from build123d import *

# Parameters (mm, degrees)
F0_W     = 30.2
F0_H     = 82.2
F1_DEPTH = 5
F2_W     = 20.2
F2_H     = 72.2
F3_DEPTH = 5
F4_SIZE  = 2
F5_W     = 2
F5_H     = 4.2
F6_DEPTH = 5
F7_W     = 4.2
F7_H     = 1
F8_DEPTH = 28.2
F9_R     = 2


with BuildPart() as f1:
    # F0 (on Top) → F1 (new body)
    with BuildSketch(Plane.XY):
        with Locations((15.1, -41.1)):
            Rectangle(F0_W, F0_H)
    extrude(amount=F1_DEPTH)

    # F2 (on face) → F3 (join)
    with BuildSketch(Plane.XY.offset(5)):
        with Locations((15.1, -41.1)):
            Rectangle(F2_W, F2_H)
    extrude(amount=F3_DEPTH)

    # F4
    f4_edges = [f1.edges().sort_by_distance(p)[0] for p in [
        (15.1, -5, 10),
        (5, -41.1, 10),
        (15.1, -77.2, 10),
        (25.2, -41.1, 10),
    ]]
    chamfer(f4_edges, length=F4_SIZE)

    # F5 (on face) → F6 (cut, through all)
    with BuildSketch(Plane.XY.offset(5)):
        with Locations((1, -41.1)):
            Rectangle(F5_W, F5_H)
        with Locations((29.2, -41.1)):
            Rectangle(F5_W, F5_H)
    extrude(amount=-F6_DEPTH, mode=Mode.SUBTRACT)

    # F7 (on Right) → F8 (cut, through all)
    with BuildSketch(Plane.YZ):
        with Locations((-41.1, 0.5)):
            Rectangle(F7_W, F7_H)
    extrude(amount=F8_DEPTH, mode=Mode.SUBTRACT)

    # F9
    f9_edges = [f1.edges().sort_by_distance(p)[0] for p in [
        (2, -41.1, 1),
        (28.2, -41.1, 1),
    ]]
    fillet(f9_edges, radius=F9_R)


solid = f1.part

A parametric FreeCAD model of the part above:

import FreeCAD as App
import Part
import Sketcher

V = App.Vector


def edges_at(feature, points):
    """Names of the edges that pass closest to the given points."""
    edges = feature.Shape.Edges
    near = lambda p: min(range(len(edges)), key=lambda i: edges[i].distToShape(Part.Vertex(*p))[0])
    return sorted({f"Edge{near(p) + 1}" for p in points})

doc = App.newDocument("Part")
params = doc.addObject("Spreadsheet::Sheet", "Params")
for row, (alias, value) in enumerate([
    ("sketch1_width", "30.2 mm"),
    ("sketch1_height", "82.2 mm"),
    ("pad1_length", "5 mm"),
    ("sketch2_width", "20.2 mm"),
    ("sketch2_height", "72.2 mm"),
    ("pad2_length", "5 mm"),
    ("chamfer_size", "2 mm"),
    ("sketch3_width", "2 mm"),
    ("sketch3_height", "4.2 mm"),
    ("sketch4_height", "1 mm"),
    ("sketch4_width", "4.2 mm"),
    ("fillet_radius", "2 mm"),
], start=1):
    params.set(f"A{row}", alias)
    params.set(f"B{row}", "=" + value)
    params.setAlias(f"B{row}", alias)

body = doc.addObject("PartDesign::Body", "Body")

sketch1 = body.newObject("Sketcher::SketchObject", "Sketch")
sketch1.AttachmentSupport = (doc.getObject("XY_Plane"), [""])
sketch1.MapMode = "FlatFace"
sketch1.addGeometry([
    Part.LineSegment(V(0, 0, 0), V(0, -82, 0)),
    Part.LineSegment(V(0, -82, 0), V(30, -82, 0)),
    Part.LineSegment(V(30, -82, 0), V(30, 0, 0)),
    Part.LineSegment(V(30, 0, 0), V(0, 0, 0)),
], False)
sketch1.addConstraint([
    Sketcher.Constraint("Coincident", 0, 2, 1, 1),
    Sketcher.Constraint("Coincident", 1, 2, 2, 1),
    Sketcher.Constraint("Coincident", 2, 2, 3, 1),
    Sketcher.Constraint("Coincident", 3, 2, 0, 1),
    Sketcher.Constraint("Vertical", 0),
    Sketcher.Constraint("Horizontal", 1),
    Sketcher.Constraint("Vertical", 2),
    Sketcher.Constraint("Horizontal", 3),
    Sketcher.Constraint("Coincident", 3, 2, -1, 1),
    Sketcher.Constraint("DistanceX", 1, 1, 1, 2, 30.2),
    Sketcher.Constraint("DistanceY", 0, 2, 0, 1, 82.2),
])
sketch1.setExpression("Constraints[9]", "Params.sketch1_width")
sketch1.setExpression("Constraints[10]", "Params.sketch1_height")
pad1 = body.newObject("PartDesign::Pad", "Pad")
pad1.Profile = sketch1
pad1.setExpression("Length", "Params.pad1_length")

sketch2 = body.newObject("Sketcher::SketchObject", "Sketch001")
sketch2.AttachmentSupport = (doc.getObject("XY_Plane"), [""])
sketch2.MapMode = "FlatFace"
sketch2.AttachmentOffset = App.Placement(V(0, 0, 5), App.Rotation())
sketch2.addGeometry([
    Part.LineSegment(V(5, -5, 0), V(5, -77, 0)),
    Part.LineSegment(V(5, -77, 0), V(25, -77, 0)),
    Part.LineSegment(V(25, -77, 0), V(25, -5, 0)),
    Part.LineSegment(V(25, -5, 0), V(5, -5, 0)),
], False)
sketch2.addConstraint([
    Sketcher.Constraint("Coincident", 0, 2, 1, 1),
    Sketcher.Constraint("Coincident", 1, 2, 2, 1),
    Sketcher.Constraint("Coincident", 2, 2, 3, 1),
    Sketcher.Constraint("Coincident", 3, 2, 0, 1),
    Sketcher.Constraint("Vertical", 0),
    Sketcher.Constraint("Horizontal", 1),
    Sketcher.Constraint("Vertical", 2),
    Sketcher.Constraint("Horizontal", 3),
    Sketcher.Constraint("DistanceX", 1, 1, 1, 2, 20.2),
    Sketcher.Constraint("DistanceY", 0, 2, 0, 1, 72.2),
    Sketcher.Constraint("DistanceX", -1, 1, 0, 2, 5.0),
    Sketcher.Constraint("DistanceY", 2, 2, -1, 1, 5.0),
])
sketch2.setExpression("Constraints[8]", "Params.sketch2_width")
sketch2.setExpression("Constraints[9]", "Params.sketch2_height")
pad2 = body.newObject("PartDesign::Pad", "Pad001")
pad2.Profile = sketch2
pad2.setExpression("Length", "Params.pad2_length")
doc.recompute()

chamfer = body.newObject("PartDesign::Chamfer", "Chamfer")
chamfer.Base = (pad2, edges_at(pad2, [
    (15.1, -5, 10),
    (5, -41.1, 10),
    (15.1, -77.2, 10),
    (25.2, -41.1, 10),
]))
chamfer.setExpression("Size", "Params.chamfer_size")

sketch3 = body.newObject("Sketcher::SketchObject", "Sketch002")
sketch3.AttachmentSupport = (doc.getObject("XY_Plane"), [""])
sketch3.MapMode = "FlatFace"
sketch3.AttachmentOffset = App.Placement(V(0, 0, 5), App.Rotation())
sketch3.addGeometry([
    Part.LineSegment(V(0, -39, 0), V(0, -43.2, 0)),
    Part.LineSegment(V(0, -43.2, 0), V(2, -43.2, 0)),
    Part.LineSegment(V(2, -43.2, 0), V(2, -39, 0)),
    Part.LineSegment(V(2, -39, 0), V(0, -39, 0)),
    Part.LineSegment(V(28.2, -39, 0), V(28.2, -43.2, 0)),
    Part.LineSegment(V(28.2, -43.2, 0), V(30.2, -43.2, 0)),
    Part.LineSegment(V(30.2, -43.2, 0), V(30.2, -39, 0)),
    Part.LineSegment(V(30.2, -39, 0), V(28.2, -39, 0)),
], False)
sketch3.addConstraint([
    Sketcher.Constraint("Coincident", 0, 2, 1, 1),
    Sketcher.Constraint("Coincident", 1, 2, 2, 1),
    Sketcher.Constraint("Coincident", 2, 2, 3, 1),
    Sketcher.Constraint("Coincident", 3, 2, 0, 1),
    Sketcher.Constraint("Coincident", 4, 2, 5, 1),
    Sketcher.Constraint("Coincident", 5, 2, 6, 1),
    Sketcher.Constraint("Coincident", 6, 2, 7, 1),
    Sketcher.Constraint("Coincident", 7, 2, 4, 1),
    Sketcher.Constraint("Vertical", 0),
    Sketcher.Constraint("Horizontal", 1),
    Sketcher.Constraint("Vertical", 2),
    Sketcher.Constraint("Horizontal", 3),
    Sketcher.Constraint("Vertical", 4),
    Sketcher.Constraint("Horizontal", 5),
    Sketcher.Constraint("Vertical", 6),
    Sketcher.Constraint("Horizontal", 7),
    Sketcher.Constraint("PointOnObject", 0, 2, -2),
    Sketcher.Constraint("Horizontal", 1, 2, 4, 2),
    Sketcher.Constraint("Horizontal", 3, 2, 6, 2),
    Sketcher.Constraint("Equal", 3, 5),
    Sketcher.Constraint("DistanceX", 1, 1, 1, 2, 2.0),
    Sketcher.Constraint("DistanceY", 0, 2, 0, 1, 4.2),
    Sketcher.Constraint("DistanceY", 2, 2, -1, 1, 39.0),
    Sketcher.Constraint("DistanceX", -1, 1, 4, 2, 28.2),
])
sketch3.setExpression("Constraints[20]", "Params.sketch3_width")
sketch3.setExpression("Constraints[21]", "Params.sketch3_height")
pocket1 = body.newObject("PartDesign::Pocket", "Pocket")
pocket1.Profile = sketch3
pocket1.Type = "ThroughAll"

sketch4 = body.newObject("Sketcher::SketchObject", "Sketch003")
sketch4.AttachmentSupport = (doc.getObject("YZ_Plane"), [""])
sketch4.MapMode = "FlatFace"
sketch4.addGeometry([
    Part.LineSegment(V(-43.2, 1, 0), V(-43.2, 0, 0)),
    Part.LineSegment(V(-43.2, 0, 0), V(-39, 0, 0)),
    Part.LineSegment(V(-39, 0, 0), V(-39, 1, 0)),
    Part.LineSegment(V(-39, 1, 0), V(-43.2, 1, 0)),
], False)
sketch4.addConstraint([
    Sketcher.Constraint("Coincident", 0, 2, 1, 1),
    Sketcher.Constraint("Coincident", 1, 2, 2, 1),
    Sketcher.Constraint("Coincident", 2, 2, 3, 1),
    Sketcher.Constraint("Coincident", 3, 2, 0, 1),
    Sketcher.Constraint("Vertical", 0),
    Sketcher.Constraint("Horizontal", 1),
    Sketcher.Constraint("Vertical", 2),
    Sketcher.Constraint("Horizontal", 3),
    Sketcher.Constraint("PointOnObject", 0, 2, -1),
    Sketcher.Constraint("DistanceY", 0, 2, 0, 1, 1.0),
    Sketcher.Constraint("DistanceX", 1, 1, 1, 2, 4.2),
    Sketcher.Constraint("DistanceX", 1, 2, -1, 1, 39.0),
])
sketch4.setExpression("Constraints[9]", "Params.sketch4_height")
sketch4.setExpression("Constraints[10]", "Params.sketch4_width")
pocket2 = body.newObject("PartDesign::Pocket", "Pocket001")
pocket2.Profile = sketch4
pocket2.Type = "ThroughAll"
pocket2.Reversed = True
doc.recompute()

fillet = body.newObject("PartDesign::Fillet", "Fillet")
fillet.Base = (pocket2, edges_at(pocket2, [(2, -41.1, 1), (28.2, -41.1, 1)]))
fillet.setExpression("Radius", "Params.fillet_radius")

doc.recompute()
